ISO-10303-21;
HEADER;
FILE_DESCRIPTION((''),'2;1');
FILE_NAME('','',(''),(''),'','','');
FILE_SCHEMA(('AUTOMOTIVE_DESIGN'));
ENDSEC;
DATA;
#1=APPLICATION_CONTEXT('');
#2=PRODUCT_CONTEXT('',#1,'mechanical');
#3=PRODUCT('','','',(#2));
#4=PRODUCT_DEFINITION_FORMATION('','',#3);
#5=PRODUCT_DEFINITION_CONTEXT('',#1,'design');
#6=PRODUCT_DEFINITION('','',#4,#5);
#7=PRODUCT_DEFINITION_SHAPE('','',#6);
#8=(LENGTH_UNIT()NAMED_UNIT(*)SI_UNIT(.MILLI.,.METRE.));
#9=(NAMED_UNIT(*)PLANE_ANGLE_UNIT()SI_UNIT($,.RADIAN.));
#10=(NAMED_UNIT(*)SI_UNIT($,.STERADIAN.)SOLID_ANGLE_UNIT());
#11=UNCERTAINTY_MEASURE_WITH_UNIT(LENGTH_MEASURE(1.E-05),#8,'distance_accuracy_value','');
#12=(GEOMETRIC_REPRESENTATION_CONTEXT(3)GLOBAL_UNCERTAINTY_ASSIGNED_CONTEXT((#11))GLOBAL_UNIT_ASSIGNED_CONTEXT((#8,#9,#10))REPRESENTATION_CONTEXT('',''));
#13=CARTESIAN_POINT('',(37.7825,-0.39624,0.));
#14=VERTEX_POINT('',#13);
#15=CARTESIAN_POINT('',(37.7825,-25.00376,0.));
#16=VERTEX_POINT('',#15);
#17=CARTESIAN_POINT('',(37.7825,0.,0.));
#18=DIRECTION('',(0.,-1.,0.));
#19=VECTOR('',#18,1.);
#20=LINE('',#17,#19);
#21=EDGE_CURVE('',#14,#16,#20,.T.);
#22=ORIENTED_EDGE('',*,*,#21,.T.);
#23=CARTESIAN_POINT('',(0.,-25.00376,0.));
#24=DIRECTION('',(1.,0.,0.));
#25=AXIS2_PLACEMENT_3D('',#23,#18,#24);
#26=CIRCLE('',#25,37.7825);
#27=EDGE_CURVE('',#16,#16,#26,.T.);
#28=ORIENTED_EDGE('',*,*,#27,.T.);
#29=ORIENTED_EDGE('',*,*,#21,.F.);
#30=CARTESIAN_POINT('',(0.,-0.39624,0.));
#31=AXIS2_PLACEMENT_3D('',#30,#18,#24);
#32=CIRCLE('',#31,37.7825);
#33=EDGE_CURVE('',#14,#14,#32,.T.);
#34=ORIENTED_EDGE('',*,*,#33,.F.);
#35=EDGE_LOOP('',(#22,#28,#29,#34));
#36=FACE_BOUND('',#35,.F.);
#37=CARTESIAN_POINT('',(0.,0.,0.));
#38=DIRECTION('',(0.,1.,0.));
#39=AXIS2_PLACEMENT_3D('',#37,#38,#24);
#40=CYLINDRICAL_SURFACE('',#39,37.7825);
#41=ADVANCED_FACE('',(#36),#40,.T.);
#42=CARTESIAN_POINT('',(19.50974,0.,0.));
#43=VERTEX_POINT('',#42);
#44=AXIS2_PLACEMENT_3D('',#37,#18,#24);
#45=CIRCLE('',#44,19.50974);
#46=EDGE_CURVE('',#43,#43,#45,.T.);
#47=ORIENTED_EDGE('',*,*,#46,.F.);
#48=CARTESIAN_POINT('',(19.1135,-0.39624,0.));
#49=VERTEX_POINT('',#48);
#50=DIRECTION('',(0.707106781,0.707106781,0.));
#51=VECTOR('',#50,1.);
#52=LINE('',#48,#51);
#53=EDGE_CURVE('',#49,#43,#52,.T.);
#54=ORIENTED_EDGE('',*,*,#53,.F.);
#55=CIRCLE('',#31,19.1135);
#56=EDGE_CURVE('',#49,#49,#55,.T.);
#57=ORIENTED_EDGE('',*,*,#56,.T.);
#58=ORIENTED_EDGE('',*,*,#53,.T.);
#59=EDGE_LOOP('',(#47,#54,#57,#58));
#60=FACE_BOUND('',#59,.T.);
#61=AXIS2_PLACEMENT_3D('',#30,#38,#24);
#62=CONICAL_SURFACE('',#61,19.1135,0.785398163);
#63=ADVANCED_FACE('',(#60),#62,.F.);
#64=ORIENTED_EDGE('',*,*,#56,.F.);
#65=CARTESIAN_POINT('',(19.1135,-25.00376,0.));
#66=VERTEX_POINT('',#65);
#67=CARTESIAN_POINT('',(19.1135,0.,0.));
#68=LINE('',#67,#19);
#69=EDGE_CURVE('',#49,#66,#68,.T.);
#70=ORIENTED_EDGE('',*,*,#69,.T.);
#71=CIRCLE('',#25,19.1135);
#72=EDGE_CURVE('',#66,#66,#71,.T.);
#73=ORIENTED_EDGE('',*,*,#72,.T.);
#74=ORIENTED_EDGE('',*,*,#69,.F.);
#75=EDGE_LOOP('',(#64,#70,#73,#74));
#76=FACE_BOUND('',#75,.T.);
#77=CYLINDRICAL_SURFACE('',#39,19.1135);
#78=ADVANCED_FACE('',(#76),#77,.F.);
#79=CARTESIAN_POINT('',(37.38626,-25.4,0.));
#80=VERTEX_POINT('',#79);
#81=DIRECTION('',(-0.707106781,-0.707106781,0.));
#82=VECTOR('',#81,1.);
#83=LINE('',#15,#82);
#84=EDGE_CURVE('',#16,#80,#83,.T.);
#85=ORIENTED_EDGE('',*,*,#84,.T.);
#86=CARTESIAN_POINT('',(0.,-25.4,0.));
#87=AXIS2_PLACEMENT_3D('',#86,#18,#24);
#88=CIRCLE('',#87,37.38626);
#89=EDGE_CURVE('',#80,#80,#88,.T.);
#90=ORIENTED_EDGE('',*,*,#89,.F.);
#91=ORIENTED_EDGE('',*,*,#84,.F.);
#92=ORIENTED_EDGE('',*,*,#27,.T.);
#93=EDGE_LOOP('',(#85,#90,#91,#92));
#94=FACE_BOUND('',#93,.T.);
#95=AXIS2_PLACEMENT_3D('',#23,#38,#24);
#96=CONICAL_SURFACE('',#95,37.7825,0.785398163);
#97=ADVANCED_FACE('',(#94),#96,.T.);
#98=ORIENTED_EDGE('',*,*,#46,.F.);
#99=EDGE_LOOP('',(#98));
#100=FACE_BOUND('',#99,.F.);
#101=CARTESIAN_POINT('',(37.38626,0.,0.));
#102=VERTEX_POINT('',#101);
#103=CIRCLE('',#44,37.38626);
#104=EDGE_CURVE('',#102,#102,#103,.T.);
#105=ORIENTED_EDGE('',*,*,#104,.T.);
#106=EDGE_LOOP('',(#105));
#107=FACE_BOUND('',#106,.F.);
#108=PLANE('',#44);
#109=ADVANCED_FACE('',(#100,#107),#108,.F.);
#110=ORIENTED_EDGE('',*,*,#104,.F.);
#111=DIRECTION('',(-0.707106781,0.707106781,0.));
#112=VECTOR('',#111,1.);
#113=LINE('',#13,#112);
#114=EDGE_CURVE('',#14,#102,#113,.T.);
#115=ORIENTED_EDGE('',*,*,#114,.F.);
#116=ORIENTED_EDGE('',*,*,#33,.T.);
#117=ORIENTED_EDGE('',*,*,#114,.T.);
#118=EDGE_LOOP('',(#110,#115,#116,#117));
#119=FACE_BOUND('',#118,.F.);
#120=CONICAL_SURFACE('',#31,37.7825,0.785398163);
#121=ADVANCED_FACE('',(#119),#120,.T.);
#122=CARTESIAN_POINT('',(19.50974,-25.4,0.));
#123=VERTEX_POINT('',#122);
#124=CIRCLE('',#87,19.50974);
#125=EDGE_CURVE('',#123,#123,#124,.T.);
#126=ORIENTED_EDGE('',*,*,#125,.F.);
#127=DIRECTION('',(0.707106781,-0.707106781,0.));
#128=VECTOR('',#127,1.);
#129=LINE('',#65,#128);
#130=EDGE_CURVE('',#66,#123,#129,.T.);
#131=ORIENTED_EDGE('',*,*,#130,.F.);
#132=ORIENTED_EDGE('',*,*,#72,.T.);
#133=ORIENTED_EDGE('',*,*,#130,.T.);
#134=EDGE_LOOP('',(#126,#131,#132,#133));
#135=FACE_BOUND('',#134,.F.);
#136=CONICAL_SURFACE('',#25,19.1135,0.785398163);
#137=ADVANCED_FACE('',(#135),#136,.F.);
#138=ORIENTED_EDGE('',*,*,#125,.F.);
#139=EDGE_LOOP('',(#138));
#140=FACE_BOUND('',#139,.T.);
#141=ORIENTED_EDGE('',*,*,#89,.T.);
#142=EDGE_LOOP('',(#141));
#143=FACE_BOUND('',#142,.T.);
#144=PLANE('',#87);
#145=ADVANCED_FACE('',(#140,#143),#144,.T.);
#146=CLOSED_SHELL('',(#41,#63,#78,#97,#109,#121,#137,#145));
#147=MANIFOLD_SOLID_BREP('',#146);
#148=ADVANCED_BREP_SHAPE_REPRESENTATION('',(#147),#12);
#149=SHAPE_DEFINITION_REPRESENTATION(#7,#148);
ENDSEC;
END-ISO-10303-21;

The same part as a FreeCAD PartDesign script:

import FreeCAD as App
import Part
import Sketcher

V = App.Vector
Q = App.Units.Quantity

doc = App.newDocument("Part")
params = doc.addObject("Spreadsheet::Sheet", "Params")
for row, (alias, value) in enumerate([
    ("sketch1_diameter", "2.975 in"),
    ("sketch1_diameter2", "1.505 in"),
    ("pad1_length", "1 in"),
    ("chamfer_size", "0.0156 in"),
], start=1):
    params.set(f"A{row}", alias)
    params.set(f"B{row}", "=" + value)
    params.setAlias(f"B{row}", alias)

body = doc.addObject("PartDesign::Body", "Body")

# Sketch on XZ plane
sketch1 = doc.addObject("Sketcher::SketchObject", "Sketch")
body.addObject(sketch1)
sketch1.AttachmentSupport = (doc.XZ_Plane, [""])
sketch1.MapMode = "FlatFace"
sketch1.addGeometry(Part.Circle(V(0, 0, 0), V(0, 0, 1), 37.7825), False)
sketch1.addGeometry(Part.Circle(V(0, 0, 0), V(0, 0, 1), 19.1135), False)
sketch1.addConstraint(Sketcher.Constraint("Coincident", 0, 3, -1, 1))
sketch1.addConstraint(Sketcher.Constraint("Coincident", 1, 3, -1, 1))
sketch1.addConstraint(Sketcher.Constraint("Diameter", 0, Q("2.975 in")))
sketch1.addConstraint(Sketcher.Constraint("Diameter", 1, Q("1.505 in")))
sketch1.setExpression("Constraints[2]", "Params.sketch1_diameter")
sketch1.setExpression("Constraints[3]", "Params.sketch1_diameter2")
pad1 = doc.addObject("PartDesign::Pad", "Pad")
body.addObject(pad1)
pad1.Profile = sketch1
pad1.setExpression("Length", "Params.pad1_length")
doc.recompute()

chamfer = doc.addObject("PartDesign::Chamfer", "Chamfer")
body.addObject(chamfer)
chamfer.Base = (pad1, ["Edge1"])
chamfer.UseAllEdges = True
chamfer.setExpression("Size", "Params.chamfer_size")

doc.recompute()
